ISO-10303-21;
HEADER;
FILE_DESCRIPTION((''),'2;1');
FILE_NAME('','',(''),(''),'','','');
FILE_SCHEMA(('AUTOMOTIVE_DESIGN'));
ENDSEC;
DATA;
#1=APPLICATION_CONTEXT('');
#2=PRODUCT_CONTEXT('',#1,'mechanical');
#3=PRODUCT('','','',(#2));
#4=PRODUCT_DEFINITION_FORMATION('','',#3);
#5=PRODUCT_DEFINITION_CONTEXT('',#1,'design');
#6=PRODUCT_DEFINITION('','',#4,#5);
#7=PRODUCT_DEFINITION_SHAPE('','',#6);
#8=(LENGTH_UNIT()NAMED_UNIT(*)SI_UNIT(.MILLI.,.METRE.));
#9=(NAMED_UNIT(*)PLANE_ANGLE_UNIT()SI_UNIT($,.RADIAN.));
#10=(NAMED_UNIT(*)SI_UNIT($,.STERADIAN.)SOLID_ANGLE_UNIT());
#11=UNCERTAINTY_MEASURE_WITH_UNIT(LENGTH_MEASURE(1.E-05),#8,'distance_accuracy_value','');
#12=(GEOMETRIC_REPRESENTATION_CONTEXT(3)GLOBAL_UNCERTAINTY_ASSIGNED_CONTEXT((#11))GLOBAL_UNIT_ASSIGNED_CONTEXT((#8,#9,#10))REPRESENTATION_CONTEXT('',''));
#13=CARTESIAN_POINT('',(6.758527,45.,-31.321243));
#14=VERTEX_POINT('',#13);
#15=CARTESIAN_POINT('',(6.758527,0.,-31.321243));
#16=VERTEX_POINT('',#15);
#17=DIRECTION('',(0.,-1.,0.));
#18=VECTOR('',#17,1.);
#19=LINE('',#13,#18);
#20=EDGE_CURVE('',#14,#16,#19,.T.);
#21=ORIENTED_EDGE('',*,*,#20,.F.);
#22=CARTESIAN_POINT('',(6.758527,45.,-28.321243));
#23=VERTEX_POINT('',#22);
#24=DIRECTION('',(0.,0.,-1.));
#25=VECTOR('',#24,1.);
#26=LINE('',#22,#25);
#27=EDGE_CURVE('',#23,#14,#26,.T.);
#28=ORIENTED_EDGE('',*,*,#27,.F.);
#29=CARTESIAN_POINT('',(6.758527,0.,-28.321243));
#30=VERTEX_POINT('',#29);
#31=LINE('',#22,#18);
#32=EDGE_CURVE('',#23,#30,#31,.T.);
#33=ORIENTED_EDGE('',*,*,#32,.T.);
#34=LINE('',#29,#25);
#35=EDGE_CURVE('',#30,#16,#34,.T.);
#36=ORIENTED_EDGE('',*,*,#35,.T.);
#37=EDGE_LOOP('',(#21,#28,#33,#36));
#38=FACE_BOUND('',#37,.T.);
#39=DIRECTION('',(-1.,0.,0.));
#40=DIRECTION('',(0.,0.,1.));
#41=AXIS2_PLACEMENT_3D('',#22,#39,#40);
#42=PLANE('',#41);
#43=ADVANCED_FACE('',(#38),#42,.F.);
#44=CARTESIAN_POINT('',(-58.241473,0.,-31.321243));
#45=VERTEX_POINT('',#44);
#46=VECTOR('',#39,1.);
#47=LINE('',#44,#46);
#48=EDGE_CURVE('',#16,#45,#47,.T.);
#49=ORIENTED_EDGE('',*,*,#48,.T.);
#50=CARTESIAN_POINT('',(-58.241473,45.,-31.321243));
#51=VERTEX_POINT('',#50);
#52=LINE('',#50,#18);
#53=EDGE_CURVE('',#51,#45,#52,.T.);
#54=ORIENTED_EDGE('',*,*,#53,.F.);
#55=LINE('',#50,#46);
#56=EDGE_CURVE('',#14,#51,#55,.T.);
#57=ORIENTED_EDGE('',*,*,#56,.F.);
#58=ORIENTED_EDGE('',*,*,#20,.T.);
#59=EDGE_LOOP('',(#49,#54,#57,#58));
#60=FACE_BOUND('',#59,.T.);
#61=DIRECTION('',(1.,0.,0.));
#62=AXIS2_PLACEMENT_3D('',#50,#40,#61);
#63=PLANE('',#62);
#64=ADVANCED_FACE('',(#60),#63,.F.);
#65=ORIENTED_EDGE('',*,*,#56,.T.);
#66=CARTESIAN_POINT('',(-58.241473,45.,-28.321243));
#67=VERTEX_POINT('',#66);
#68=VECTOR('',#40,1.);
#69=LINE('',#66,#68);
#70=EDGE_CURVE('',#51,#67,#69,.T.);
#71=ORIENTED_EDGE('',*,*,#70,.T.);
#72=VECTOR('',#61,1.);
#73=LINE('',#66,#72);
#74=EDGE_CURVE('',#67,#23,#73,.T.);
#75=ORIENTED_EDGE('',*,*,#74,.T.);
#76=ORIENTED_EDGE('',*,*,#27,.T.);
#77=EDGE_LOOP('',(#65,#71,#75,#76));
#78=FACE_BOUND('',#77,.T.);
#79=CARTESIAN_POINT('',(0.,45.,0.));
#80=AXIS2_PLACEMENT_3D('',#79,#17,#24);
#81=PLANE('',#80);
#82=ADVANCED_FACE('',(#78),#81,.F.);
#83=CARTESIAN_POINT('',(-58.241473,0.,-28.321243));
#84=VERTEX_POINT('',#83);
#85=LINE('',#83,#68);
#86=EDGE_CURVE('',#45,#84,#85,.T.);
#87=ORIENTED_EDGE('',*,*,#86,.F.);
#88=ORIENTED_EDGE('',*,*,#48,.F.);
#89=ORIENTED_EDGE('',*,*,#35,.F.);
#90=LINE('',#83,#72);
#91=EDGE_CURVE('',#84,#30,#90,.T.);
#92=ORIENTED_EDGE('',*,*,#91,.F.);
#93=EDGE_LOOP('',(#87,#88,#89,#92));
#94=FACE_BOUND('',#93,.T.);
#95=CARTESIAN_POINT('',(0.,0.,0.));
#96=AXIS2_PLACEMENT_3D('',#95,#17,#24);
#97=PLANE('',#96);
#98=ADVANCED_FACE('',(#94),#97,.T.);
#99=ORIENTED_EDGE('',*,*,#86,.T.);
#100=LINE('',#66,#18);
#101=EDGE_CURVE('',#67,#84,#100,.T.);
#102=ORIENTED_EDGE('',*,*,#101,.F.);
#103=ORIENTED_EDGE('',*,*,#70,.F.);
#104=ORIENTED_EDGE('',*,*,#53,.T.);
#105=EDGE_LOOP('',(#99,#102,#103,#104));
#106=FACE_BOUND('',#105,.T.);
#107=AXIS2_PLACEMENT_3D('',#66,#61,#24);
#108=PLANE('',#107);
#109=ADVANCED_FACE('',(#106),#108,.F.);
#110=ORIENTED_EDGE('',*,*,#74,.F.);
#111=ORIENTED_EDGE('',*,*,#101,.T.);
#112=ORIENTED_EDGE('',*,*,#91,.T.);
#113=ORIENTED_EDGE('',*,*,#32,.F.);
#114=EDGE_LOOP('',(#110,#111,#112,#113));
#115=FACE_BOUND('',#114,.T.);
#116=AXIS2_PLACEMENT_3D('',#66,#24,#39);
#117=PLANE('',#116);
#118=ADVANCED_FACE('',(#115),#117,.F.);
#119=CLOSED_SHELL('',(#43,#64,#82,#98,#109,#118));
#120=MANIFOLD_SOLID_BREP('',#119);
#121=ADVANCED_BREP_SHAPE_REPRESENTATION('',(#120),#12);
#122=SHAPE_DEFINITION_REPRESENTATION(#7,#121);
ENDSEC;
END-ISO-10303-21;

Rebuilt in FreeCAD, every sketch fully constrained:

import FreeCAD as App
import Part
import Sketcher
Q = App.Units.Quantity

doc = App.newDocument("Part")
body = doc.addObject("PartDesign::Body", "Body")

sketch1 = body.newObject("Sketcher::SketchObject", "Sketch")
sketch1.AttachmentSupport = (doc.getObject("XZ_Plane"), [""])
sketch1.MapMode = "FlatFace"
sketch1.addGeometry([
    Part.LineSegment(App.Vector(-58.2, -31.3, 0), App.Vector(-58.2, -28.3, 0)),
    Part.LineSegment(App.Vector(-58.2, -28.3, 0), App.Vector(6.8, -28.3, 0)),
    Part.LineSegment(App.Vector(6.8, -28.3, 0), App.Vector(6.8, -31.3, 0)),
    Part.LineSegment(App.Vector(6.8, -31.3, 0), App.Vector(-58.2, -31.3, 0)),
], False)
sketch1.addConstraint([
    Sketcher.Constraint("Coincident", 0, 2, 1, 1),
    Sketcher.Constraint("Coincident", 1, 2, 2, 1),
    Sketcher.Constraint("Coincident", 2, 2, 3, 1),
    Sketcher.Constraint("Coincident", 3, 2, 0, 1),
    Sketcher.Constraint("Vertical", 0),
    Sketcher.Constraint("Horizontal", 1),
    Sketcher.Constraint("Vertical", 2),
    Sketcher.Constraint("Horizontal", 3),
    Sketcher.Constraint("DistanceX", 1, 1, 1, 2, Q("65 mm")),
    Sketcher.Constraint("DistanceY", 0, 1, 0, 2, Q("3 mm")),
    Sketcher.Constraint("DistanceX", 0, 2, -1, 1, Q("58.241473 mm")),
    Sketcher.Constraint("DistanceY", 0, 2, -1, 1, Q("28.321243 mm")),
])
pad1 = body.newObject("PartDesign::Pad", "Pad")
pad1.Profile = sketch1
pad1.Length = 45
pad1.Reversed = True

doc.recompute()
